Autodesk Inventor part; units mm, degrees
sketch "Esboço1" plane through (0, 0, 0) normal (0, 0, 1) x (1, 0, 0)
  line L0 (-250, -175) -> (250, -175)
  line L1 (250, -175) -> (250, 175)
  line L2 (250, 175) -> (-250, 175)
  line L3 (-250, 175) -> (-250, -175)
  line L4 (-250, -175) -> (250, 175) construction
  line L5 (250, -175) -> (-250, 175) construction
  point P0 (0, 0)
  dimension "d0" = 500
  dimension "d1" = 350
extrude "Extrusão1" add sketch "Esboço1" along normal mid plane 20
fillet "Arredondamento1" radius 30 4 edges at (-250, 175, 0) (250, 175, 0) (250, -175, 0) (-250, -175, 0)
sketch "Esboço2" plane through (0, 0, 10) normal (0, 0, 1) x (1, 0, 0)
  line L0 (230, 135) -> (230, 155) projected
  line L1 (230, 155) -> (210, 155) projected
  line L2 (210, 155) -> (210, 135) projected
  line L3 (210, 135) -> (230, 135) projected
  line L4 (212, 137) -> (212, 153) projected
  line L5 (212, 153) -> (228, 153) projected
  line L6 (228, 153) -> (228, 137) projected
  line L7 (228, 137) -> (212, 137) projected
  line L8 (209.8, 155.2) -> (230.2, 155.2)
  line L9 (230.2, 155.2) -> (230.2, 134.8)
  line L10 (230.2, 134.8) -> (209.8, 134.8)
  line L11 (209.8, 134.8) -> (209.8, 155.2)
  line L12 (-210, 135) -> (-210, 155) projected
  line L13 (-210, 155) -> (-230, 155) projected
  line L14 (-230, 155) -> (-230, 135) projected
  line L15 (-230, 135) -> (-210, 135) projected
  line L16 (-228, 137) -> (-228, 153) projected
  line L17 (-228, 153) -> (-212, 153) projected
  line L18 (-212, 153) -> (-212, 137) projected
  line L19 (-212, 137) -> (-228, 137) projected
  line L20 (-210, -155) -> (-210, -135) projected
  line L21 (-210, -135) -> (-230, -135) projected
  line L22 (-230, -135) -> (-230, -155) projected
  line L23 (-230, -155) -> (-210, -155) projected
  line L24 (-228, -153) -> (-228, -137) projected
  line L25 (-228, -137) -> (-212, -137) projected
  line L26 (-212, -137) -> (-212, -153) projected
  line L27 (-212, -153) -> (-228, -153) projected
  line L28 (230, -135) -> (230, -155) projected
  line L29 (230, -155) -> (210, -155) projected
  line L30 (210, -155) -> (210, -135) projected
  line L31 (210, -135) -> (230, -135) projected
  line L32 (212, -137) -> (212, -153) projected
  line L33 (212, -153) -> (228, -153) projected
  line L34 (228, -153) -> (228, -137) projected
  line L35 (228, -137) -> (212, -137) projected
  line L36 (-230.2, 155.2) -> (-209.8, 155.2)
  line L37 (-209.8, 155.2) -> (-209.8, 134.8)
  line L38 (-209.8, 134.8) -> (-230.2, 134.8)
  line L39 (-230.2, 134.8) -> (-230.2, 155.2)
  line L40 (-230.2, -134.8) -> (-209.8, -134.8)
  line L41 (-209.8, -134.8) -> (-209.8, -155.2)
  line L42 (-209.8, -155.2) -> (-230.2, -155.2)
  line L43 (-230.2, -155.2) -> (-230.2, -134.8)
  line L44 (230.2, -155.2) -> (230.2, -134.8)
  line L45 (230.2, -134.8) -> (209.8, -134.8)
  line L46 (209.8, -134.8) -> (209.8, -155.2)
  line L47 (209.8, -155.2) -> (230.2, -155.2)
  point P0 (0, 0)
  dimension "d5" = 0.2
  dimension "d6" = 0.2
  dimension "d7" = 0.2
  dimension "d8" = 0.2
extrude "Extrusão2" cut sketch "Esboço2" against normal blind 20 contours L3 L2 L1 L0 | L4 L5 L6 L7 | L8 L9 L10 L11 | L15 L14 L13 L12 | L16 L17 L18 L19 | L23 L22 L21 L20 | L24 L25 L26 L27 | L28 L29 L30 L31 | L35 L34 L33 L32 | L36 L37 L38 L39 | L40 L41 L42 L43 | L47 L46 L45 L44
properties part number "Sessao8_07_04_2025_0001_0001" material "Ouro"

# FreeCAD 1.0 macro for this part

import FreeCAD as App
import Part
import Sketcher
from FreeCAD import Vector


def edges_at(feature, points):
    """Names of the edges that pass closest to the given points."""
    edges = feature.Shape.Edges
    near = lambda p: min(range(len(edges)), key=lambda i: edges[i].distToShape(Part.Vertex(*p))[0])
    return sorted({f"Edge{near(p) + 1}" for p in points})

doc = App.newDocument("Part")
body = doc.addObject("PartDesign::Body", "Body")

# Sketch on XY plane
sketch1 = body.newObject("Sketcher::SketchObject", "Sketch")
sketch1.AttachmentSupport = (doc.getObject("XY_Plane"), [""])
sketch1.MapMode = "FlatFace"
sketch1.addGeometry([
    Part.LineSegment(Vector(-250, 175, 0), Vector(-250, -175, 0)),
    Part.LineSegment(Vector(-250, -175, 0), Vector(250, -175, 0)),
    Part.LineSegment(Vector(250, -175, 0), Vector(250, 175, 0)),
    Part.LineSegment(Vector(250, 175, 0), Vector(-250, 175, 0)),
], False)
sketch1.addConstraint([
    Sketcher.Constraint("Coincident", 0, 2, 1, 1),
    Sketcher.Constraint("Coincident", 1, 2, 2, 1),
    Sketcher.Constraint("Coincident", 2, 2, 3, 1),
    Sketcher.Constraint("Coincident", 3, 2, 0, 1),
    Sketcher.Constraint("Vertical", 0),
    Sketcher.Constraint("Horizontal", 1),
    Sketcher.Constraint("Vertical", 2),
    Sketcher.Constraint("Horizontal", 3),
    Sketcher.Constraint("Symmetric", 0, 2, 2, 2, -1, 1),
    Sketcher.Constraint("DistanceX", 1, 1, 1, 2, 500.0),
    Sketcher.Constraint("DistanceY", 0, 2, 0, 1, 350.0),
])
pad1 = body.newObject("PartDesign::Pad", "Pad")
pad1.Profile = sketch1
pad1.Length = 20
pad1.Midplane = True
doc.recompute()

fillet = body.newObject("PartDesign::Fillet", "Fillet")
fillet.Base = (pad1, edges_at(pad1, [
    (-250, 175, 0),
    (250, 175, 0),
    (250, -175, 0),
    (-250, -175, 0),
]))
fillet.Radius = 30

# Sketch on XY plane
sketch2 = body.newObject("Sketcher::SketchObject", "Sketch001")
sketch2.AttachmentSupport = (doc.getObject("XY_Plane"), [""])
sketch2.MapMode = "FlatFace"
sketch2.AttachmentOffset = App.Placement(Vector(0, 0, 10), App.Rotation())
sketch2.addGeometry([
    Part.LineSegment(Vector(230, 155, 0), Vector(210, 155, 0)),  # 0
    Part.LineSegment(Vector(210, 155, 0), Vector(210, 135, 0)),  # 1
    Part.LineSegment(Vector(210, 135, 0), Vector(230, 135, 0)),  # 2
    Part.LineSegment(Vector(230, 135, 0), Vector(230, 155, 0)),  # 3
    Part.LineSegment(Vector(-210, 155, 0), Vector(-230, 155, 0)),  # 4
    Part.LineSegment(Vector(-230, 155, 0), Vector(-230, 135, 0)),  # 5
    Part.LineSegment(Vector(-230, 135, 0), Vector(-210, 135, 0)),  # 6
    Part.LineSegment(Vector(-210, 135, 0), Vector(-210, 155, 0)),  # 7
    Part.LineSegment(Vector(-210, -135, 0), Vector(-230, -135, 0)),  # 8
    Part.LineSegment(Vector(-230, -135, 0), Vector(-230, -155, 0)),  # 9
    Part.LineSegment(Vector(-230, -155, 0), Vector(-210, -155, 0)),  # 10
    Part.LineSegment(Vector(-210, -155, 0), Vector(-210, -135, 0)),  # 11
    Part.LineSegment(Vector(210, -155, 0), Vector(230, -155, 0)),  # 12
    Part.LineSegment(Vector(230, -155, 0), Vector(230, -135, 0)),  # 13
    Part.LineSegment(Vector(230, -135, 0), Vector(210, -135, 0)),  # 14
    Part.LineSegment(Vector(210, -135, 0), Vector(210, -155, 0)),  # 15
], False)
sketch2.addConstraint([
    Sketcher.Constraint("Coincident", 0, 2, 1, 1),
    Sketcher.Constraint("Coincident", 1, 2, 2, 1),
    Sketcher.Constraint("Coincident", 2, 2, 3, 1),
    Sketcher.Constraint("Coincident", 3, 2, 0, 1),
    Sketcher.Constraint("Coincident", 4, 2, 5, 1),
    Sketcher.Constraint("Coincident", 5, 2, 6, 1),
    Sketcher.Constraint("Coincident", 6, 2, 7, 1),
    Sketcher.Constraint("Coincident", 7, 2, 4, 1),
    Sketcher.Constraint("Coincident", 8, 2, 9, 1),
    Sketcher.Constraint("Coincident", 9, 2, 10, 1),
    Sketcher.Constraint("Coincident", 10, 2, 11, 1),
    Sketcher.Constraint("Coincident", 11, 2, 8, 1),
    Sketcher.Constraint("Coincident", 12, 2, 13, 1),
    Sketcher.Constraint("Coincident", 13, 2, 14, 1),
    Sketcher.Constraint("Coincident", 14, 2, 15, 1),
    Sketcher.Constraint("Coincident", 15, 2, 12, 1),
    Sketcher.Constraint("Horizontal", 0),
    Sketcher.Constraint("Vertical", 1),
    Sketcher.Constraint("Horizontal", 2),
    Sketcher.Constraint("Vertical", 3),
    Sketcher.Constraint("Horizontal", 4),
    Sketcher.Constraint("Vertical", 5),
    Sketcher.Constraint("Horizontal", 6),
    Sketcher.Constraint("Vertical", 7),
    Sketcher.Constraint("Horizontal", 8),
    Sketcher.Constraint("Vertical", 9),
    Sketcher.Constraint("Horizontal", 10),
    Sketcher.Constraint("Vertical", 11),
    Sketcher.Constraint("Horizontal", 12),
    Sketcher.Constraint("Vertical", 13),
    Sketcher.Constraint("Horizontal", 14),
    Sketcher.Constraint("Vertical", 15),
    Sketcher.Constraint("Symmetric", 2, 2, 8, 2, -1, 1),
    Sketcher.Constraint("Symmetric", 0, 2, 10, 2, -1, 1),
    Sketcher.Constraint("Symmetric", 4, 2, 12, 2, -1, 1),
    Sketcher.Constraint("Symmetric", 6, 2, 14, 2, -1, 1),
    Sketcher.Constraint("Symmetric", 3, 2, 4, 2, -2),
    Sketcher.Constraint("Symmetric", 1, 2, 6, 2, -2),
    Sketcher.Constraint("Equal", 14, 1),
    Sketcher.Constraint("DistanceX", 0, 2, 0, 1, 20.4),
    Sketcher.Constraint("DistanceX", 4, 2, 0, 2, 440.0),
    Sketcher.Constraint("DistanceY", 8, 2, 4, 2, 290.0),
])
pocket1 = body.newObject("PartDesign::Pocket", "Pocket")
pocket1.Profile = sketch2
pocket1.Length = 20

doc.recompute()
